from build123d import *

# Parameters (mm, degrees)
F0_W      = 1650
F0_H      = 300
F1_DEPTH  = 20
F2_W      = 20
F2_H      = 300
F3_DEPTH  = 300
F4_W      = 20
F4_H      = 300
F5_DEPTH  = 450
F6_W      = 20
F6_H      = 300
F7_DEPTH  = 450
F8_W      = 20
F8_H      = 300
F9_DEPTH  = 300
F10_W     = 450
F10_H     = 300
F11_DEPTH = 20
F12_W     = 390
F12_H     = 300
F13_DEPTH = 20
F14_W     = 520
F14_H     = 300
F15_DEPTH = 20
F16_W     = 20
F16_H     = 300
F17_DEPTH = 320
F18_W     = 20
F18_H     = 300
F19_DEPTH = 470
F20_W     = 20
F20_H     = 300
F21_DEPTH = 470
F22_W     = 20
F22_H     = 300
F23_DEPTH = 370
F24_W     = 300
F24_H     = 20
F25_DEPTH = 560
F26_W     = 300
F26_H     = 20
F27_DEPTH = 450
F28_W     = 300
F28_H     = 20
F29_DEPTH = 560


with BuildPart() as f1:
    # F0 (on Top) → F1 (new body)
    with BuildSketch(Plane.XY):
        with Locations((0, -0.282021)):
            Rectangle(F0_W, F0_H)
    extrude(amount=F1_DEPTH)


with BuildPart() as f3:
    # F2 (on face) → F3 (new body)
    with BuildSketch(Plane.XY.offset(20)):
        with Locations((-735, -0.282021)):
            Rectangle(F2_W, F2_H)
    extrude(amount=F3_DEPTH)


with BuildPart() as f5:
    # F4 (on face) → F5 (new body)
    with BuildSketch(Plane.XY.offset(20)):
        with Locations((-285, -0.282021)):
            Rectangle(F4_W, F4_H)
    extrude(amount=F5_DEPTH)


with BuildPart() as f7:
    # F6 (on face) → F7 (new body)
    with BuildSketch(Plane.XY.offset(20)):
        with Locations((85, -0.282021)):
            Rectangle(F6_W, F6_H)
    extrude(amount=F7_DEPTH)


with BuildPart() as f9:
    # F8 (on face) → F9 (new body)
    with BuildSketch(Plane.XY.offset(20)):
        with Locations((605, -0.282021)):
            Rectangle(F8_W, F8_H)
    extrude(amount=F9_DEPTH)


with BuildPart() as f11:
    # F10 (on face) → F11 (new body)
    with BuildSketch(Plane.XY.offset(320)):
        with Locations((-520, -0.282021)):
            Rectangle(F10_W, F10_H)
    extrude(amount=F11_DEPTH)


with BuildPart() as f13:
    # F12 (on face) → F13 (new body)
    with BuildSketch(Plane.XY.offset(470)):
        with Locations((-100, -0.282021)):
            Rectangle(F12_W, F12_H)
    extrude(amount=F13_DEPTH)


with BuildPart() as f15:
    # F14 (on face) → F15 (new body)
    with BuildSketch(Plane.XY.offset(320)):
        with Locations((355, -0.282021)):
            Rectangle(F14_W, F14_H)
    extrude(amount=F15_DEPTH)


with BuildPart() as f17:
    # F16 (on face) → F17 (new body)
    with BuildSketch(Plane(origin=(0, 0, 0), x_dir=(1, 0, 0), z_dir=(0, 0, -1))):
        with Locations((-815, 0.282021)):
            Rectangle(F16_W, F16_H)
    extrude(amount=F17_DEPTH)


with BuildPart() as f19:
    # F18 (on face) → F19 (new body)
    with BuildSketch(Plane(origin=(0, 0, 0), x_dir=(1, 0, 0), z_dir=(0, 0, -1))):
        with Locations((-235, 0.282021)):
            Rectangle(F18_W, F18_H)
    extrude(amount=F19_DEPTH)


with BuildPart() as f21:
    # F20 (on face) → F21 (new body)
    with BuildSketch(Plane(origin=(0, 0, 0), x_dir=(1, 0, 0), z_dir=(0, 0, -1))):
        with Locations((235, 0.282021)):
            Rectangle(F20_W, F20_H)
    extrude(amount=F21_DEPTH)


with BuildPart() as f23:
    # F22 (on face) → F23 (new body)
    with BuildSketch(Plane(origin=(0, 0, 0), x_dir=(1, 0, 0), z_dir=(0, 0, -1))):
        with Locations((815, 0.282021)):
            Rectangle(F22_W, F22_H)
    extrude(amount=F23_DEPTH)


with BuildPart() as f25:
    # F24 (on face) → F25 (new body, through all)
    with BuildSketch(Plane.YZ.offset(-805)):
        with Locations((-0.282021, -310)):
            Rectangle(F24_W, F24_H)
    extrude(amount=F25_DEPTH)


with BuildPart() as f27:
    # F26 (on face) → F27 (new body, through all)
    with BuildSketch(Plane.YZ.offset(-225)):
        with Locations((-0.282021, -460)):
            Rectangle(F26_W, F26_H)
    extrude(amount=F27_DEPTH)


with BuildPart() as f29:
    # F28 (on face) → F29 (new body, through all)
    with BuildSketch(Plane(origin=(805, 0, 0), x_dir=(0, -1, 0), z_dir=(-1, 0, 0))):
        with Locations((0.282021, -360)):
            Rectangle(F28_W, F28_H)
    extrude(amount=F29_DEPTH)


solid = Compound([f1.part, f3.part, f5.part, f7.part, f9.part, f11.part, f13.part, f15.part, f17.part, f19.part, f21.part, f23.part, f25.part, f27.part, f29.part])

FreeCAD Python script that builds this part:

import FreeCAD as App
import Part
import Sketcher

V = App.Vector
Q = App.Units.Quantity


def add_polygon(sketch, points):
    """Adds a closed chain of lines whose ends are joined by coincident constraints."""
    first, n = sketch.GeometryCount, len(points)
    for a, b in zip(points, points[1:] + points[:1]):
        sketch.addGeometry(Part.LineSegment(App.Vector(*a, 0), App.Vector(*b, 0)), False)
    for i in range(n):
        sketch.addConstraint(Sketcher.Constraint("Coincident", first + i, 2, first + (i + 1) % n, 1))

doc = App.newDocument("Part")
params = doc.addObject("Spreadsheet::Sheet", "Params")
for row, (alias, value) in enumerate([
    ("sketch1_width", "1650 mm"),
    ("sketch1_height", "300 mm"),
    ("pad1_length", "20 mm"),
    ("sketch2_width", "20 mm"),
    ("sketch2_height", "300 mm"),
    ("pad2_length", "300 mm"),
    ("sketch3_width", "20 mm"),
    ("sketch3_height", "300 mm"),
    ("pad3_length", "450 mm"),
    ("sketch4_width", "20 mm"),
    ("sketch4_height", "300 mm"),
    ("pad4_length", "450 mm"),
    ("sketch5_width", "20 mm"),
    ("sketch5_height", "300 mm"),
    ("pad5_length", "300 mm"),
    ("sketch6_width", "450 mm"),
    ("sketch6_height", "300 mm"),
    ("pad6_length", "20 mm"),
    ("sketch7_width", "390 mm"),
    ("sketch7_height", "300 mm"),
    ("pad7_length", "20 mm"),
    ("sketch8_width", "520 mm"),
    ("sketch8_height", "300 mm"),
    ("pad8_length", "20 mm"),
    ("sketch9_width", "20 mm"),
    ("sketch9_height", "300 mm"),
    ("pad9_length", "320 mm"),
    ("sketch10_width", "20 mm"),
    ("sketch10_height", "300 mm"),
    ("pad10_length", "470 mm"),
    ("sketch11_width", "20 mm"),
    ("sketch11_height", "300 mm"),
    ("pad11_length", "470 mm"),
    ("sketch12_width", "20 mm"),
    ("sketch12_height", "300 mm"),
    ("pad12_length", "370 mm"),
    ("sketch13_width", "300 mm"),
    ("sketch13_height", "20 mm"),
    ("pad13_length", "560 mm"),
    ("sketch14_width", "300 mm"),
    ("sketch14_height", "20 mm"),
    ("pad14_length", "450 mm"),
    ("sketch15_width", "300 mm"),
    ("sketch15_height", "20 mm"),
    ("pad15_length", "560 mm"),
], start=1):
    params.set(f"A{row}", alias)
    params.set(f"B{row}", "=" + value)
    params.setAlias(f"B{row}", alias)

body = doc.addObject("PartDesign::Body", "Body")

# Sketch on XY plane
sketch1 = body.newObject("Sketcher::SketchObject", "Sketch")
sketch1.AttachmentSupport = (doc.getObject("XY_Plane"), [""])
sketch1.MapMode = "FlatFace"
add_polygon(sketch1, [(-825, 150), (-825, -150), (825, -150), (825, 150)])  # lines 0-3
sketch1.addConstraint(Sketcher.Constraint("Vertical", 0))
sketch1.addConstraint(Sketcher.Constraint("Horizontal", 1))
sketch1.addConstraint(Sketcher.Constraint("Vertical", 2))
sketch1.addConstraint(Sketcher.Constraint("Horizontal", 3))
sketch1.addConstraint(Sketcher.Constraint("DistanceX", 1, 1, 1, 2, Q("1650 mm")))
sketch1.addConstraint(Sketcher.Constraint("DistanceY", 0, 2, 0, 1, Q("300 mm")))
sketch1.addConstraint(Sketcher.Constraint("DistanceX", 0, 2, -1, 1, Q("825 mm")))
sketch1.addConstraint(Sketcher.Constraint("DistanceY", 0, 2, -1, 1, Q("150.282021 mm")))
sketch1.setExpression("Constraints[8]", "Params.sketch1_width")
sketch1.setExpression("Constraints[9]", "Params.sketch1_height")
pad1 = body.newObject("PartDesign::Pad", "Pad")
pad1.Profile = sketch1
pad1.setExpression("Length", "Params.pad1_length")
body2 = doc.addObject("PartDesign::Body", "Body001")

# Sketch on XY plane
sketch2 = body2.newObject("Sketcher::SketchObject", "Sketch001")
sketch2.AttachmentSupport = (doc.getObject("XY_Plane001"), [""])
sketch2.MapMode = "FlatFace"
sketch2.AttachmentOffset = App.Placement(V(0, 0, 20), App.Rotation())
add_polygon(sketch2, [(-745, 150), (-745, -150), (-725, -150), (-725, 150)])  # lines 0-3
sketch2.addConstraint(Sketcher.Constraint("Vertical", 0))
sketch2.addConstraint(Sketcher.Constraint("Horizontal", 1))
sketch2.addConstraint(Sketcher.Constraint("Vertical", 2))
sketch2.addConstraint(Sketcher.Constraint("Horizontal", 3))
sketch2.addConstraint(Sketcher.Constraint("DistanceX", 1, 1, 1, 2, Q("20 mm")))
sketch2.addConstraint(Sketcher.Constraint("DistanceY", 0, 2, 0, 1, Q("300 mm")))
sketch2.addConstraint(Sketcher.Constraint("DistanceX", 0, 2, -1, 1, Q("745 mm")))
sketch2.addConstraint(Sketcher.Constraint("DistanceY", 0, 2, -1, 1, Q("150.282021 mm")))
sketch2.setExpression("Constraints[8]", "Params.sketch2_width")
sketch2.setExpression("Constraints[9]", "Params.sketch2_height")
pad2 = body2.newObject("PartDesign::Pad", "Pad001")
pad2.Profile = sketch2
pad2.setExpression("Length", "Params.pad2_length")
body3 = doc.addObject("PartDesign::Body", "Body002")

# Sketch on XY plane
sketch3 = body3.newObject("Sketcher::SketchObject", "Sketch002")
sketch3.AttachmentSupport = (doc.getObject("XY_Plane002"), [""])
sketch3.MapMode = "FlatFace"
sketch3.AttachmentOffset = App.Placement(V(0, 0, 20), App.Rotation())
add_polygon(sketch3, [(-295, 150), (-295, -150), (-275, -150), (-275, 150)])  # lines 0-3
sketch3.addConstraint(Sketcher.Constraint("Vertical", 0))
sketch3.addConstraint(Sketcher.Constraint("Horizontal", 1))
sketch3.addConstraint(Sketcher.Constraint("Vertical", 2))
sketch3.addConstraint(Sketcher.Constraint("Horizontal", 3))
sketch3.addConstraint(Sketcher.Constraint("DistanceX", 1, 1, 1, 2, Q("20 mm")))
sketch3.addConstraint(Sketcher.Constraint("DistanceY", 0, 2, 0, 1, Q("300 mm")))
sketch3.addConstraint(Sketcher.Constraint("DistanceX", 0, 2, -1, 1, Q("295 mm")))
sketch3.addConstraint(Sketcher.Constraint("DistanceY", 0, 2, -1, 1, Q("150.282021 mm")))
sketch3.setExpression("Constraints[8]", "Params.sketch3_width")
sketch3.setExpression("Constraints[9]", "Params.sketch3_height")
pad3 = body3.newObject("PartDesign::Pad", "Pad002")
pad3.Profile = sketch3
pad3.setExpression("Length", "Params.pad3_length")
body4 = doc.addObject("PartDesign::Body", "Body003")

# Sketch on XY plane
sketch4 = body4.newObject("Sketcher::SketchObject", "Sketch003")
sketch4.AttachmentSupport = (doc.getObject("XY_Plane003"), [""])
sketch4.MapMode = "FlatFace"
sketch4.AttachmentOffset = App.Placement(V(0, 0, 20), App.Rotation())
add_polygon(sketch4, [(75, 150), (75, -150), (95, -150), (95, 150)])  # lines 0-3
sketch4.addConstraint(Sketcher.Constraint("Vertical", 0))
sketch4.addConstraint(Sketcher.Constraint("Horizontal", 1))
sketch4.addConstraint(Sketcher.Constraint("Vertical", 2))
sketch4.addConstraint(Sketcher.Constraint("Horizontal", 3))
sketch4.addConstraint(Sketcher.Constraint("DistanceX", 1, 1, 1, 2, Q("20 mm")))
sketch4.addConstraint(Sketcher.Constraint("DistanceY", 0, 2, 0, 1, Q("300 mm")))
sketch4.addConstraint(Sketcher.Constraint("DistanceX", -1, 1, 0, 2, Q("75 mm")))
sketch4.addConstraint(Sketcher.Constraint("DistanceY", 0, 2, -1, 1, Q("150.282021 mm")))
sketch4.setExpression("Constraints[8]", "Params.sketch4_width")
sketch4.setExpression("Constraints[9]", "Params.sketch4_height")
pad4 = body4.newObject("PartDesign::Pad", "Pad003")
pad4.Profile = sketch4
pad4.setExpression("Length", "Params.pad4_length")
body5 = doc.addObject("PartDesign::Body", "Body004")

# Sketch on XY plane
sketch5 = body5.newObject("Sketcher::SketchObject", "Sketch004")
sketch5.AttachmentSupport = (doc.getObject("XY_Plane004"), [""])
sketch5.MapMode = "FlatFace"
sketch5.AttachmentOffset = App.Placement(V(0, 0, 20), App.Rotation())
add_polygon(sketch5, [(595, 150), (595, -150), (615, -150), (615, 150)])  # lines 0-3
sketch5.addConstraint(Sketcher.Constraint("Vertical", 0))
sketch5.addConstraint(Sketcher.Constraint("Horizontal", 1))
sketch5.addConstraint(Sketcher.Constraint("Vertical", 2))
sketch5.addConstraint(Sketcher.Constraint("Horizontal", 3))
sketch5.addConstraint(Sketcher.Constraint("DistanceX", 1, 1, 1, 2, Q("20 mm")))
sketch5.addConstraint(Sketcher.Constraint("DistanceY", 0, 2, 0, 1, Q("300 mm")))
sketch5.addConstraint(Sketcher.Constraint("DistanceX", -1, 1, 0, 2, Q("595 mm")))
sketch5.addConstraint(Sketcher.Constraint("DistanceY", 0, 2, -1, 1, Q("150.282021 mm")))
sketch5.setExpression("Constraints[8]", "Params.sketch5_width")
sketch5.setExpression("Constraints[9]", "Params.sketch5_height")
pad5 = body5.newObject("PartDesign::Pad", "Pad004")
pad5.Profile = sketch5
pad5.setExpression("Length", "Params.pad5_length")
body6 = doc.addObject("PartDesign::Body", "Body005")

# Sketch on XY plane
sketch6 = body6.newObject("Sketcher::SketchObject", "Sketch005")
sketch6.AttachmentSupport = (doc.getObject("XY_Plane005"), [""])
sketch6.MapMode = "FlatFace"
sketch6.AttachmentOffset = App.Placement(V(0, 0, 320), App.Rotation())
add_polygon(sketch6, [(-745, 150), (-745, -150), (-295, -150), (-295, 150)])  # lines 0-3
sketch6.addConstraint(Sketcher.Constraint("Vertical", 0))
sketch6.addConstraint(Sketcher.Constraint("Horizontal", 1))
sketch6.addConstraint(Sketcher.Constraint("Vertical", 2))
sketch6.addConstraint(Sketcher.Constraint("Horizontal", 3))
sketch6.addConstraint(Sketcher.Constraint("DistanceX", 1, 1, 1, 2, Q("450 mm")))
sketch6.addConstraint(Sketcher.Constraint("DistanceY", 0, 2, 0, 1, Q("300 mm")))
sketch6.addConstraint(Sketcher.Constraint("DistanceX", 0, 2, -1, 1, Q("745 mm")))
sketch6.addConstraint(Sketcher.Constraint("DistanceY", 0, 2, -1, 1, Q("150.282021 mm")))
sketch6.setExpression("Constraints[8]", "Params.sketch6_width")
sketch6.setExpression("Constraints[9]", "Params.sketch6_height")
pad6 = body6.newObject("PartDesign::Pad", "Pad005")
pad6.Profile = sketch6
pad6.setExpression("Length", "Params.pad6_length")
body7 = doc.addObject("PartDesign::Body", "Body006")

# Sketch on XY plane
sketch7 = body7.newObject("Sketcher::SketchObject", "Sketch006")
sketch7.AttachmentSupport = (doc.getObject("XY_Plane006"), [""])
sketch7.MapMode = "FlatFace"
sketch7.AttachmentOffset = App.Placement(V(0, 0, 470), App.Rotation())
add_polygon(sketch7, [(-295, 150), (-295, -150), (95, -150), (95, 150)])  # lines 0-3
sketch7.addConstraint(Sketcher.Constraint("Vertical", 0))
sketch7.addConstraint(Sketcher.Constraint("Horizontal", 1))
sketch7.addConstraint(Sketcher.Constraint("Vertical", 2))
sketch7.addConstraint(Sketcher.Constraint("Horizontal", 3))
sketch7.addConstraint(Sketcher.Constraint("DistanceX", 1, 1, 1, 2, Q("390 mm")))
sketch7.addConstraint(Sketcher.Constraint("DistanceY", 0, 2, 0, 1, Q("300 mm")))
sketch7.addConstraint(Sketcher.Constraint("DistanceX", 0, 2, -1, 1, Q("295 mm")))
sketch7.addConstraint(Sketcher.Constraint("DistanceY", 0, 2, -1, 1, Q("150.282021 mm")))
sketch7.setExpression("Constraints[8]", "Params.sketch7_width")
sketch7.setExpression("Constraints[9]", "Params.sketch7_height")
pad7 = body7.newObject("PartDesign::Pad", "Pad006")
pad7.Profile = sketch7
pad7.setExpression("Length", "Params.pad7_length")
body8 = doc.addObject("PartDesign::Body", "Body007")

# Sketch on XY plane
sketch8 = body8.newObject("Sketcher::SketchObject", "Sketch007")
sketch8.AttachmentSupport = (doc.getObject("XY_Plane007"), [""])
sketch8.MapMode = "FlatFace"
sketch8.AttachmentOffset = App.Placement(V(0, 0, 320), App.Rotation())
add_polygon(sketch8, [(95, 150), (95, -150), (615, -150), (615, 150)])  # lines 0-3
sketch8.addConstraint(Sketcher.Constraint("Vertical", 0))
sketch8.addConstraint(Sketcher.Constraint("Horizontal", 1))
sketch8.addConstraint(Sketcher.Constraint("Vertical", 2))
sketch8.addConstraint(Sketcher.Constraint("Horizontal", 3))
sketch8.addConstraint(Sketcher.Constraint("DistanceX", 1, 1, 1, 2, Q("520 mm")))
sketch8.addConstraint(Sketcher.Constraint("DistanceY", 0, 2, 0, 1, Q("300 mm")))
sketch8.addConstraint(Sketcher.Constraint("DistanceX", -1, 1, 0, 2, Q("95 mm")))
sketch8.addConstraint(Sketcher.Constraint("DistanceY", 0, 2, -1, 1, Q("150.282021 mm")))
sketch8.setExpression("Constraints[8]", "Params.sketch8_width")
sketch8.setExpression("Constraints[9]", "Params.sketch8_height")
pad8 = body8.newObject("PartDesign::Pad", "Pad007")
pad8.Profile = sketch8
pad8.setExpression("Length", "Params.pad8_length")
body9 = doc.addObject("PartDesign::Body", "Body008")

# Sketch on XY plane
sketch9 = body9.newObject("Sketcher::SketchObject", "Sketch008")
sketch9.AttachmentSupport = (doc.getObject("XY_Plane008"), [""])
sketch9.MapMode = "FlatFace"
add_polygon(sketch9, [(-825, -150), (-825, 150), (-805, 150), (-805, -150)])  # lines 0-3
sketch9.addConstraint(Sketcher.Constraint("Vertical", 0))
sketch9.addConstraint(Sketcher.Constraint("Horizontal", 1))
sketch9.addConstraint(Sketcher.Constraint("Vertical", 2))
sketch9.addConstraint(Sketcher.Constraint("Horizontal", 3))
sketch9.addConstraint(Sketcher.Constraint("DistanceX", 1, 1, 1, 2, Q("20 mm")))
sketch9.addConstraint(Sketcher.Constraint("DistanceY", 0, 1, 0, 2, Q("300 mm")))
sketch9.addConstraint(Sketcher.Constraint("DistanceX", 0, 2, -1, 1, Q("825 mm")))
sketch9.addConstraint(Sketcher.Constraint("DistanceY", -1, 1, 0, 2, Q("149.717979 mm")))
sketch9.setExpression("Constraints[8]", "Params.sketch9_width")
sketch9.setExpression("Constraints[9]", "Params.sketch9_height")
pad9 = body9.newObject("PartDesign::Pad", "Pad008")
pad9.Profile = sketch9
pad9.setExpression("Length", "Params.pad9_length")
pad9.Reversed = True
body10 = doc.addObject("PartDesign::Body", "Body009")

# Sketch on XY plane
sketch10 = body10.newObject("Sketcher::SketchObject", "Sketch009")
sketch10.AttachmentSupport = (doc.getObject("XY_Plane009"), [""])
sketch10.MapMode = "FlatFace"
add_polygon(sketch10, [(-245, -150), (-245, 150), (-225, 150), (-225, -150)])  # lines 0-3
sketch10.addConstraint(Sketcher.Constraint("Vertical", 0))
sketch10.addConstraint(Sketcher.Constraint("Horizontal", 1))
sketch10.addConstraint(Sketcher.Constraint("Vertical", 2))
sketch10.addConstraint(Sketcher.Constraint("Horizontal", 3))
sketch10.addConstraint(Sketcher.Constraint("DistanceX", 1, 1, 1, 2, Q("20 mm")))
sketch10.addConstraint(Sketcher.Constraint("DistanceY", 0, 1, 0, 2, Q("300 mm")))
sketch10.addConstraint(Sketcher.Constraint("DistanceX", 0, 2, -1, 1, Q("245 mm")))
sketch10.addConstraint(Sketcher.Constraint("DistanceY", -1, 1, 0, 2, Q("149.717979 mm")))
sketch10.setExpression("Constraints[8]", "Params.sketch10_width")
sketch10.setExpression("Constraints[9]", "Params.sketch10_height")
pad10 = body10.newObject("PartDesign::Pad", "Pad009")
pad10.Profile = sketch10
pad10.setExpression("Length", "Params.pad10_length")
pad10.Reversed = True
body11 = doc.addObject("PartDesign::Body", "Body010")

# Sketch on XY plane
sketch11 = body11.newObject("Sketcher::SketchObject", "Sketch010")
sketch11.AttachmentSupport = (doc.getObject("XY_Plane010"), [""])
sketch11.MapMode = "FlatFace"
add_polygon(sketch11, [(225, -150), (225, 150), (245, 150), (245, -150)])  # lines 0-3
sketch11.addConstraint(Sketcher.Constraint("Vertical", 0))
sketch11.addConstraint(Sketcher.Constraint("Horizontal", 1))
sketch11.addConstraint(Sketcher.Constraint("Vertical", 2))
sketch11.addConstraint(Sketcher.Constraint("Horizontal", 3))
sketch11.addConstraint(Sketcher.Constraint("DistanceX", 1, 1, 1, 2, Q("20 mm")))
sketch11.addConstraint(Sketcher.Constraint("DistanceY", 0, 1, 0, 2, Q("300 mm")))
sketch11.addConstraint(Sketcher.Constraint("DistanceX", -1, 1, 0, 2, Q("225 mm")))
sketch11.addConstraint(Sketcher.Constraint("DistanceY", -1, 1, 0, 2, Q("149.717979 mm")))
sketch11.setExpression("Constraints[8]", "Params.sketch11_width")
sketch11.setExpression("Constraints[9]", "Params.sketch11_height")
pad11 = body11.newObject("PartDesign::Pad", "Pad010")
pad11.Profile = sketch11
pad11.setExpression("Length", "Params.pad11_length")
pad11.Reversed = True
body12 = doc.addObject("PartDesign::Body", "Body011")

# Sketch on XY plane
sketch12 = body12.newObject("Sketcher::SketchObject", "Sketch011")
sketch12.AttachmentSupport = (doc.getObject("XY_Plane011"), [""])
sketch12.MapMode = "FlatFace"
add_polygon(sketch12, [(805, -150), (805, 150), (825, 150), (825, -150)])  # lines 0-3
sketch12.addConstraint(Sketcher.Constraint("Vertical", 0))
sketch12.addConstraint(Sketcher.Constraint("Horizontal", 1))
sketch12.addConstraint(Sketcher.Constraint("Vertical", 2))
sketch12.addConstraint(Sketcher.Constraint("Horizontal", 3))
sketch12.addConstraint(Sketcher.Constraint("DistanceX", 1, 1, 1, 2, Q("20 mm")))
sketch12.addConstraint(Sketcher.Constraint("DistanceY", 0, 1, 0, 2, Q("300 mm")))
sketch12.addConstraint(Sketcher.Constraint("DistanceX", -1, 1, 0, 2, Q("805 mm")))
sketch12.addConstraint(Sketcher.Constraint("DistanceY", -1, 1, 0, 2, Q("149.717979 mm")))
sketch12.setExpression("Constraints[8]", "Params.sketch12_width")
sketch12.setExpression("Constraints[9]", "Params.sketch12_height")
pad12 = body12.newObject("PartDesign::Pad", "Pad011")
pad12.Profile = sketch12
pad12.setExpression("Length", "Params.pad12_length")
pad12.Reversed = True
body13 = doc.addObject("PartDesign::Body", "Body012")

# Sketch on YZ plane
sketch13 = body13.newObject("Sketcher::SketchObject", "Sketch012")
sketch13.AttachmentSupport = (doc.getObject("YZ_Plane012"), [""])
sketch13.MapMode = "FlatFace"
sketch13.AttachmentOffset = App.Placement(V(0, 0, -805), App.Rotation())
add_polygon(sketch13, [(-150, -300), (-150, -320), (150, -320), (150, -300)])  # lines 0-3
sketch13.addConstraint(Sketcher.Constraint("Vertical", 0))
sketch13.addConstraint(Sketcher.Constraint("Horizontal", 1))
sketch13.addConstraint(Sketcher.Constraint("Vertical", 2))
sketch13.addConstraint(Sketcher.Constraint("Horizontal", 3))
sketch13.addConstraint(Sketcher.Constraint("DistanceX", 1, 1, 1, 2, Q("300 mm")))
sketch13.addConstraint(Sketcher.Constraint("DistanceY", 0, 2, 0, 1, Q("20 mm")))
sketch13.addConstraint(Sketcher.Constraint("DistanceY", 0, 2, -1, 1, Q("320 mm")))
sketch13.addConstraint(Sketcher.Constraint("DistanceX", 0, 2, -1, 1, Q("150.282021 mm")))
sketch13.setExpression("Constraints[8]", "Params.sketch13_width")
sketch13.setExpression("Constraints[9]", "Params.sketch13_height")
pad13 = body13.newObject("PartDesign::Pad", "Pad012")
pad13.Profile = sketch13
pad13.setExpression("Length", "Params.pad13_length")
body14 = doc.addObject("PartDesign::Body", "Body013")

# Sketch on YZ plane
sketch14 = body14.newObject("Sketcher::SketchObject", "Sketch013")
sketch14.AttachmentSupport = (doc.getObject("YZ_Plane013"), [""])
sketch14.MapMode = "FlatFace"
sketch14.AttachmentOffset = App.Placement(V(0, 0, -225), App.Rotation())
add_polygon(sketch14, [(-150, -450), (-150, -470), (150, -470), (150, -450)])  # lines 0-3
sketch14.addConstraint(Sketcher.Constraint("Vertical", 0))
sketch14.addConstraint(Sketcher.Constraint("Horizontal", 1))
sketch14.addConstraint(Sketcher.Constraint("Vertical", 2))
sketch14.addConstraint(Sketcher.Constraint("Horizontal", 3))
sketch14.addConstraint(Sketcher.Constraint("DistanceX", 1, 1, 1, 2, Q("300 mm")))
sketch14.addConstraint(Sketcher.Constraint("DistanceY", 0, 2, 0, 1, Q("20 mm")))
sketch14.addConstraint(Sketcher.Constraint("DistanceY", 0, 2, -1, 1, Q("470 mm")))
sketch14.addConstraint(Sketcher.Constraint("DistanceX", 0, 2, -1, 1, Q("150.282021 mm")))
sketch14.setExpression("Constraints[8]", "Params.sketch14_width")
sketch14.setExpression("Constraints[9]", "Params.sketch14_height")
pad14 = body14.newObject("PartDesign::Pad", "Pad013")
pad14.Profile = sketch14
pad14.setExpression("Length", "Params.pad14_length")
body15 = doc.addObject("PartDesign::Body", "Body014")

# Sketch on YZ plane
sketch15 = body15.newObject("Sketcher::SketchObject", "Sketch014")
sketch15.AttachmentSupport = (doc.getObject("YZ_Plane014"), [""])
sketch15.MapMode = "FlatFace"
sketch15.AttachmentOffset = App.Placement(V(0, 0, 805), App.Rotation())
add_polygon(sketch15, [(150, -350), (150, -370), (-150, -370), (-150, -350)])  # lines 0-3
sketch15.addConstraint(Sketcher.Constraint("Vertical", 0))
sketch15.addConstraint(Sketcher.Constraint("Horizontal", 1))
sketch15.addConstraint(Sketcher.Constraint("Vertical", 2))
sketch15.addConstraint(Sketcher.Constraint("Horizontal", 3))
sketch15.addConstraint(Sketcher.Constraint("DistanceX", 1, 2, 1, 1, Q("300 mm")))
sketch15.addConstraint(Sketcher.Constraint("DistanceY", 0, 2, 0, 1, Q("20 mm")))
sketch15.addConstraint(Sketcher.Constraint("DistanceY", 0, 2, -1, 1, Q("370 mm")))
sketch15.addConstraint(Sketcher.Constraint("DistanceX", -1, 1, 0, 2, Q("149.717979 mm")))
sketch15.setExpression("Constraints[8]", "Params.sketch15_width")
sketch15.setExpression("Constraints[9]", "Params.sketch15_height")
pad15 = body15.newObject("PartDesign::Pad", "Pad014")
pad15.Profile = sketch15
pad15.setExpression("Length", "Params.pad15_length")
pad15.Reversed = True

doc.recompute()
